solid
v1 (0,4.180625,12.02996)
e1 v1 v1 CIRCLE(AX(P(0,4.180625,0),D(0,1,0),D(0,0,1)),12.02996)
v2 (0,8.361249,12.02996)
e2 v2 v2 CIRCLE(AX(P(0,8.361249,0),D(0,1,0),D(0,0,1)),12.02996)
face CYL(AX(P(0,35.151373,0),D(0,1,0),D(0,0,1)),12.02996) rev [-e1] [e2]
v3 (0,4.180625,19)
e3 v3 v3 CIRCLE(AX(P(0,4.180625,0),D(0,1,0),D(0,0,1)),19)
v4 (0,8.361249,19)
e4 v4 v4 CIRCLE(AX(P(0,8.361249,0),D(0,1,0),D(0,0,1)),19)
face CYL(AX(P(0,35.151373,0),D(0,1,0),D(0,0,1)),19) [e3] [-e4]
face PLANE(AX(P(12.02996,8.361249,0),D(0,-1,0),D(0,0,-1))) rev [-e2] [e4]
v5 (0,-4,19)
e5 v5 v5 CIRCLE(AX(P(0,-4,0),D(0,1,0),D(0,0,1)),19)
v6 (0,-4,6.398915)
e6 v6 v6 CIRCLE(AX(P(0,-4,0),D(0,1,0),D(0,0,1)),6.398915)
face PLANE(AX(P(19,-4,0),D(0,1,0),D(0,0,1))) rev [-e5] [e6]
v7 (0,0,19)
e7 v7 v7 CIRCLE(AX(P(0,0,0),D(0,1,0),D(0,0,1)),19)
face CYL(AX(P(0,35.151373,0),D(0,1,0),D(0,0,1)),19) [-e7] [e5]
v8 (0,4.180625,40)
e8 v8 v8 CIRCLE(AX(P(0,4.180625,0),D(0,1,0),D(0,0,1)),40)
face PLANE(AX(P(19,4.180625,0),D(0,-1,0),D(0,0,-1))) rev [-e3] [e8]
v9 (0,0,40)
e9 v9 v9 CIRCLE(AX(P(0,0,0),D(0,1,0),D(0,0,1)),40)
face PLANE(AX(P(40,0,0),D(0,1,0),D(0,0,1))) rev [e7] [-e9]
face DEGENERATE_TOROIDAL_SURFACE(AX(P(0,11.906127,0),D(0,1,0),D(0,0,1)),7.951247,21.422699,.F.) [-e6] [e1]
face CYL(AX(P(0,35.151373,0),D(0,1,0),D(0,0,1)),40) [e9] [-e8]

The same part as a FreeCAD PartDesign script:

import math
import FreeCAD as App
import Part
import Sketcher

V = App.Vector

doc = App.newDocument("Part")
body = doc.addObject("PartDesign::Body", "Body")

sketch1 = body.newObject("Sketcher::SketchObject", "Sketch")
sketch1.AttachmentSupport = (doc.getObject("XY_Plane"), [""])
sketch1.MapMode = "FlatFace"
sketch1.addGeometry(Part.LineSegment(V(19, 8.4, 0), V(12, 8.4, 0)), False)
sketch1.addGeometry(Part.LineSegment(V(12, 8.4, 0), V(12, 4.2, 0)), False)
sketch1.addGeometry(Part.ArcOfCircle(Part.Circle(V(-8, 11.9, 0), V(0, 0, 1), 21.4), math.radians(-48), math.radians(-21)), False)
sketch1.addGeometry(Part.LineSegment(V(6.4, -4, 0), V(19, -4, 0)), False)
sketch1.addGeometry(Part.LineSegment(V(19, -4, 0), V(19, 0, 0)), False)
sketch1.addGeometry(Part.LineSegment(V(19, 0, 0), V(40, 0, 0)), False)
sketch1.addGeometry(Part.LineSegment(V(40, 0, 0), V(40, 4.2, 0)), False)
sketch1.addGeometry(Part.LineSegment(V(40, 4.2, 0), V(19, 4.2, 0)), False)
sketch1.addGeometry(Part.LineSegment(V(19, 4.2, 0), V(19, 8.4, 0)), False)
sketch1.addConstraint(Sketcher.Constraint("Coincident", 0, 2, 1, 1))
sketch1.addConstraint(Sketcher.Constraint("Coincident", 1, 2, 2, 2))
sketch1.addConstraint(Sketcher.Constraint("Coincident", 2, 1, 3, 1))
sketch1.addConstraint(Sketcher.Constraint("Coincident", 3, 2, 4, 1))
sketch1.addConstraint(Sketcher.Constraint("Coincident", 4, 2, 5, 1))
sketch1.addConstraint(Sketcher.Constraint("Coincident", 5, 2, 6, 1))
sketch1.addConstraint(Sketcher.Constraint("Coincident", 6, 2, 7, 1))
sketch1.addConstraint(Sketcher.Constraint("Coincident", 7, 2, 8, 1))
sketch1.addConstraint(Sketcher.Constraint("Coincident", 8, 2, 0, 1))
sketch1.addConstraint(Sketcher.Constraint("Horizontal", 0))
sketch1.addConstraint(Sketcher.Constraint("Vertical", 1))
sketch1.addConstraint(Sketcher.Constraint("Horizontal", 3))
sketch1.addConstraint(Sketcher.Constraint("Vertical", 4))
sketch1.addConstraint(Sketcher.Constraint("Horizontal", 5))
sketch1.addConstraint(Sketcher.Constraint("Vertical", 6))
sketch1.addConstraint(Sketcher.Constraint("Horizontal", 7))
sketch1.addConstraint(Sketcher.Constraint("Vertical", 8))
sketch1.addConstraint(Sketcher.Constraint("PointOnObject", 4, 2, -1))
sketch1.addConstraint(Sketcher.Constraint("Horizontal", 1, 2, 6, 2))
sketch1.addConstraint(Sketcher.Constraint("Vertical", 4, 2, 7, 2))
sketch1.addConstraint(Sketcher.Constraint("Equal", 1, 6))
sketch1.addConstraint(Sketcher.Constraint("DistanceX", 5, 1, 5, 2, 21.0))
sketch1.addConstraint(Sketcher.Constraint("DistanceY", 4, 1, 4, 2, 4.0))
sketch1.addConstraint(Sketcher.Constraint("DistanceX", -1, 1, 3, 2, 19.0))
sketch1.addConstraint(Sketcher.Constraint("Radius", 2, 21.422699))
sketch1.addConstraint(Sketcher.Constraint("DistanceX", 0, 2, 0, 1, 6.97004))
sketch1.addConstraint(Sketcher.Constraint("DistanceX", 3, 1, 3, 2, 12.601085))
sketch1.addConstraint(Sketcher.Constraint("DistanceY", 1, 2, 1, 1, 4.180625))
revolution = body.newObject("PartDesign::Revolution", "Revolution")
revolution.Profile = sketch1
revolution.ReferenceAxis = (sketch1, ["V_Axis"])
revolution.Angle = 360

doc.recompute()
